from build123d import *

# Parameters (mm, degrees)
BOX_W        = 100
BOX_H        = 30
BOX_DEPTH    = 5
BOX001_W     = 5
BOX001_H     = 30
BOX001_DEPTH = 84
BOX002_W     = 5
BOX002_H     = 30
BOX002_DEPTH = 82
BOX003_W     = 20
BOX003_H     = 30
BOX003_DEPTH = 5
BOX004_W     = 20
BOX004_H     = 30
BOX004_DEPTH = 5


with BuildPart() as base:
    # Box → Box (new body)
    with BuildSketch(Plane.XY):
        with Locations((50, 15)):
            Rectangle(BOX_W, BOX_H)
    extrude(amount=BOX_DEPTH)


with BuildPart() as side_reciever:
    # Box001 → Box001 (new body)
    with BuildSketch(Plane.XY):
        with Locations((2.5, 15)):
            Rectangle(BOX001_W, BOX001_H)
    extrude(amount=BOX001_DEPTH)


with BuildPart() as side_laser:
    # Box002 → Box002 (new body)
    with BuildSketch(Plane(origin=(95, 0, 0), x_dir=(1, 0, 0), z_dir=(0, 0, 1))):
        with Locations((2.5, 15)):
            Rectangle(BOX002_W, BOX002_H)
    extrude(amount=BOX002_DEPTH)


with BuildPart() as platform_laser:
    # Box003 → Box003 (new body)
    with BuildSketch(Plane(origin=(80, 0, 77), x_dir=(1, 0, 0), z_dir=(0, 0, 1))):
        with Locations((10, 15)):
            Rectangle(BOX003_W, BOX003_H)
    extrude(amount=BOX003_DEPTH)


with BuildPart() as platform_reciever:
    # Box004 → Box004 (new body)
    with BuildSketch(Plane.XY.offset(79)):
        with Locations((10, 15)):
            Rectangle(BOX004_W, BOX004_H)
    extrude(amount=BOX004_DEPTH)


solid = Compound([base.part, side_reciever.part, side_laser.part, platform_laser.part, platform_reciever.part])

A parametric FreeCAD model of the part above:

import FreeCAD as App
import Part
import Sketcher

doc = App.newDocument("Part")
params = doc.addObject("Spreadsheet::Sheet", "Params")
for row, (alias, value) in enumerate([
    ("sketch1_width", "100 mm"),
    ("sketch1_height", "30 mm"),
    ("pad1_length", "5 mm"),
    ("sketch2_width", "5 mm"),
    ("sketch2_height", "30 mm"),
    ("pad2_length", "84 mm"),
    ("sketch3_width", "5 mm"),
    ("sketch3_height", "30 mm"),
    ("pad3_length", "82 mm"),
    ("sketch4_width", "20 mm"),
    ("sketch4_height", "30 mm"),
    ("pad4_length", "5 mm"),
    ("sketch5_width", "20 mm"),
    ("sketch5_height", "30 mm"),
    ("pad5_length", "5 mm"),
], start=1):
    params.set(f"A{row}", alias)
    params.set(f"B{row}", "=" + value)
    params.setAlias(f"B{row}", alias)

body = doc.addObject("PartDesign::Body", "Body")

sketch1 = doc.addObject("Sketcher::SketchObject", "Sketch")
body.addObject(sketch1)
sketch1.AttachmentSupport = (doc.XY_Plane, [""])
sketch1.MapMode = "FlatFace"
sketch1.addGeometry([
    Part.LineSegment(App.Vector(0, 30, 0), App.Vector(0, 0, 0)),
    Part.LineSegment(App.Vector(0, 0, 0), App.Vector(100, 0, 0)),
    Part.LineSegment(App.Vector(100, 0, 0), App.Vector(100, 30, 0)),
    Part.LineSegment(App.Vector(100, 30, 0), App.Vector(0, 30, 0)),
], False)
sketch1.addConstraint([
    Sketcher.Constraint("Coincident", 0, 2, 1, 1),
    Sketcher.Constraint("Coincident", 1, 2, 2, 1),
    Sketcher.Constraint("Coincident", 2, 2, 3, 1),
    Sketcher.Constraint("Coincident", 3, 2, 0, 1),
    Sketcher.Constraint("Vertical", 0),
    Sketcher.Constraint("Horizontal", 1),
    Sketcher.Constraint("Vertical", 2),
    Sketcher.Constraint("Horizontal", 3),
    Sketcher.Constraint("Coincident", 0, 2, -1, 1),
    Sketcher.Constraint("DistanceX", 1, 1, 1, 2, 100.0),
    Sketcher.Constraint("DistanceY", 0, 2, 0, 1, 30.0),
])
sketch1.setExpression("Constraints[9]", "Params.sketch1_width")
sketch1.setExpression("Constraints[10]", "Params.sketch1_height")
pad1 = doc.addObject("PartDesign::Pad", "Pad")
body.addObject(pad1)
pad1.Profile = sketch1
pad1.setExpression("Length", "Params.pad1_length")
body2 = doc.addObject("PartDesign::Body", "Body001")

sketch2 = doc.addObject("Sketcher::SketchObject", "Sketch001")
body2.addObject(sketch2)
sketch2.AttachmentSupport = (doc.getObject("XY_Plane001"), [""])
sketch2.MapMode = "FlatFace"
sketch2.addGeometry([
    Part.LineSegment(App.Vector(0, 30, 0), App.Vector(0, 0, 0)),
    Part.LineSegment(App.Vector(0, 0, 0), App.Vector(5, 0, 0)),
    Part.LineSegment(App.Vector(5, 0, 0), App.Vector(5, 30, 0)),
    Part.LineSegment(App.Vector(5, 30, 0), App.Vector(0, 30, 0)),
], False)
sketch2.addConstraint([
    Sketcher.Constraint("Coincident", 0, 2, 1, 1),
    Sketcher.Constraint("Coincident", 1, 2, 2, 1),
    Sketcher.Constraint("Coincident", 2, 2, 3, 1),
    Sketcher.Constraint("Coincident", 3, 2, 0, 1),
    Sketcher.Constraint("Vertical", 0),
    Sketcher.Constraint("Horizontal", 1),
    Sketcher.Constraint("Vertical", 2),
    Sketcher.Constraint("Horizontal", 3),
    Sketcher.Constraint("Coincident", 0, 2, -1, 1),
    Sketcher.Constraint("DistanceX", 1, 1, 1, 2, 5.0),
    Sketcher.Constraint("DistanceY", 0, 2, 0, 1, 30.0),
])
sketch2.setExpression("Constraints[9]", "Params.sketch2_width")
sketch2.setExpression("Constraints[10]", "Params.sketch2_height")
pad2 = doc.addObject("PartDesign::Pad", "Pad001")
body2.addObject(pad2)
pad2.Profile = sketch2
pad2.setExpression("Length", "Params.pad2_length")
body3 = doc.addObject("PartDesign::Body", "Body002")

sketch3 = doc.addObject("Sketcher::SketchObject", "Sketch002")
body3.addObject(sketch3)
sketch3.AttachmentSupport = (doc.getObject("XY_Plane002"), [""])
sketch3.MapMode = "FlatFace"
sketch3.addGeometry([
    Part.LineSegment(App.Vector(95, 30, 0), App.Vector(95, 0, 0)),
    Part.LineSegment(App.Vector(95, 0, 0), App.Vector(100, 0, 0)),
    Part.LineSegment(App.Vector(100, 0, 0), App.Vector(100, 30, 0)),
    Part.LineSegment(App.Vector(100, 30, 0), App.Vector(95, 30, 0)),
], False)
sketch3.addConstraint([
    Sketcher.Constraint("Coincident", 0, 2, 1, 1),
    Sketcher.Constraint("Coincident", 1, 2, 2, 1),
    Sketcher.Constraint("Coincident", 2, 2, 3, 1),
    Sketcher.Constraint("Coincident", 3, 2, 0, 1),
    Sketcher.Constraint("Vertical", 0),
    Sketcher.Constraint("Horizontal", 1),
    Sketcher.Constraint("Vertical", 2),
    Sketcher.Constraint("Horizontal", 3),
    Sketcher.Constraint("PointOnObject", 0, 2, -1),
    Sketcher.Constraint("DistanceX", 1, 1, 1, 2, 5.0),
    Sketcher.Constraint("DistanceY", 0, 2, 0, 1, 30.0),
    Sketcher.Constraint("DistanceX", -1, 1, 0, 2, 95.0),
])
sketch3.setExpression("Constraints[9]", "Params.sketch3_width")
sketch3.setExpression("Constraints[10]", "Params.sketch3_height")
pad3 = doc.addObject("PartDesign::Pad", "Pad002")
body3.addObject(pad3)
pad3.Profile = sketch3
pad3.setExpression("Length", "Params.pad3_length")
body4 = doc.addObject("PartDesign::Body", "Body003")

sketch4 = doc.addObject("Sketcher::SketchObject", "Sketch003")
body4.addObject(sketch4)
sketch4.AttachmentSupport = (doc.getObject("XY_Plane003"), [""])
sketch4.MapMode = "FlatFace"
sketch4.AttachmentOffset = App.Placement(App.Vector(0, 0, 77), App.Rotation())
sketch4.addGeometry([
    Part.LineSegment(App.Vector(80, 30, 0), App.Vector(80, 0, 0)),
    Part.LineSegment(App.Vector(80, 0, 0), App.Vector(100, 0, 0)),
    Part.LineSegment(App.Vector(100, 0, 0), App.Vector(100, 30, 0)),
    Part.LineSegment(App.Vector(100, 30, 0), App.Vector(80, 30, 0)),
], False)
sketch4.addConstraint([
    Sketcher.Constraint("Coincident", 0, 2, 1, 1),
    Sketcher.Constraint("Coincident", 1, 2, 2, 1),
    Sketcher.Constraint("Coincident", 2, 2, 3, 1),
    Sketcher.Constraint("Coincident", 3, 2, 0, 1),
    Sketcher.Constraint("Vertical", 0),
    Sketcher.Constraint("Horizontal", 1),
    Sketcher.Constraint("Vertical", 2),
    Sketcher.Constraint("Horizontal", 3),
    Sketcher.Constraint("PointOnObject", 0, 2, -1),
    Sketcher.Constraint("DistanceX", 1, 1, 1, 2, 20.0),
    Sketcher.Constraint("DistanceY", 0, 2, 0, 1, 30.0),
    Sketcher.Constraint("DistanceX", -1, 1, 0, 2, 80.0),
])
sketch4.setExpression("Constraints[9]", "Params.sketch4_width")
sketch4.setExpression("Constraints[10]", "Params.sketch4_height")
pad4 = doc.addObject("PartDesign::Pad", "Pad003")
body4.addObject(pad4)
pad4.Profile = sketch4
pad4.setExpression("Length", "Params.pad4_length")
body5 = doc.addObject("PartDesign::Body", "Body004")

sketch5 = doc.addObject("Sketcher::SketchObject", "Sketch004")
body5.addObject(sketch5)
sketch5.AttachmentSupport = (doc.getObject("XY_Plane004"), [""])
sketch5.MapMode = "FlatFace"
sketch5.AttachmentOffset = App.Placement(App.Vector(0, 0, 79), App.Rotation())
sketch5.addGeometry([
    Part.LineSegment(App.Vector(0, 30, 0), App.Vector(0, 0, 0)),
    Part.LineSegment(App.Vector(0, 0, 0), App.Vector(20, 0, 0)),
    Part.LineSegment(App.Vector(20, 0, 0), App.Vector(20, 30, 0)),
    Part.LineSegment(App.Vector(20, 30, 0), App.Vector(0, 30, 0)),
], False)
sketch5.addConstraint([
    Sketcher.Constraint("Coincident", 0, 2, 1, 1),
    Sketcher.Constraint("Coincident", 1, 2, 2, 1),
    Sketcher.Constraint("Coincident", 2, 2, 3, 1),
    Sketcher.Constraint("Coincident", 3, 2, 0, 1),
    Sketcher.Constraint("Vertical", 0),
    Sketcher.Constraint("Horizontal", 1),
    Sketcher.Constraint("Vertical", 2),
    Sketcher.Constraint("Horizontal", 3),
    Sketcher.Constraint("Coincident", 0, 2, -1, 1),
    Sketcher.Constraint("DistanceX", 1, 1, 1, 2, 20.0),
    Sketcher.Constraint("DistanceY", 0, 2, 0, 1, 30.0),
])
sketch5.setExpression("Constraints[9]", "Params.sketch5_width")
sketch5.setExpression("Constraints[10]", "Params.sketch5_height")
pad5 = doc.addObject("PartDesign::Pad", "Pad004")
body5.addObject(pad5)
pad5.Profile = sketch5
pad5.setExpression("Length", "Params.pad5_length")

doc.recompute()
